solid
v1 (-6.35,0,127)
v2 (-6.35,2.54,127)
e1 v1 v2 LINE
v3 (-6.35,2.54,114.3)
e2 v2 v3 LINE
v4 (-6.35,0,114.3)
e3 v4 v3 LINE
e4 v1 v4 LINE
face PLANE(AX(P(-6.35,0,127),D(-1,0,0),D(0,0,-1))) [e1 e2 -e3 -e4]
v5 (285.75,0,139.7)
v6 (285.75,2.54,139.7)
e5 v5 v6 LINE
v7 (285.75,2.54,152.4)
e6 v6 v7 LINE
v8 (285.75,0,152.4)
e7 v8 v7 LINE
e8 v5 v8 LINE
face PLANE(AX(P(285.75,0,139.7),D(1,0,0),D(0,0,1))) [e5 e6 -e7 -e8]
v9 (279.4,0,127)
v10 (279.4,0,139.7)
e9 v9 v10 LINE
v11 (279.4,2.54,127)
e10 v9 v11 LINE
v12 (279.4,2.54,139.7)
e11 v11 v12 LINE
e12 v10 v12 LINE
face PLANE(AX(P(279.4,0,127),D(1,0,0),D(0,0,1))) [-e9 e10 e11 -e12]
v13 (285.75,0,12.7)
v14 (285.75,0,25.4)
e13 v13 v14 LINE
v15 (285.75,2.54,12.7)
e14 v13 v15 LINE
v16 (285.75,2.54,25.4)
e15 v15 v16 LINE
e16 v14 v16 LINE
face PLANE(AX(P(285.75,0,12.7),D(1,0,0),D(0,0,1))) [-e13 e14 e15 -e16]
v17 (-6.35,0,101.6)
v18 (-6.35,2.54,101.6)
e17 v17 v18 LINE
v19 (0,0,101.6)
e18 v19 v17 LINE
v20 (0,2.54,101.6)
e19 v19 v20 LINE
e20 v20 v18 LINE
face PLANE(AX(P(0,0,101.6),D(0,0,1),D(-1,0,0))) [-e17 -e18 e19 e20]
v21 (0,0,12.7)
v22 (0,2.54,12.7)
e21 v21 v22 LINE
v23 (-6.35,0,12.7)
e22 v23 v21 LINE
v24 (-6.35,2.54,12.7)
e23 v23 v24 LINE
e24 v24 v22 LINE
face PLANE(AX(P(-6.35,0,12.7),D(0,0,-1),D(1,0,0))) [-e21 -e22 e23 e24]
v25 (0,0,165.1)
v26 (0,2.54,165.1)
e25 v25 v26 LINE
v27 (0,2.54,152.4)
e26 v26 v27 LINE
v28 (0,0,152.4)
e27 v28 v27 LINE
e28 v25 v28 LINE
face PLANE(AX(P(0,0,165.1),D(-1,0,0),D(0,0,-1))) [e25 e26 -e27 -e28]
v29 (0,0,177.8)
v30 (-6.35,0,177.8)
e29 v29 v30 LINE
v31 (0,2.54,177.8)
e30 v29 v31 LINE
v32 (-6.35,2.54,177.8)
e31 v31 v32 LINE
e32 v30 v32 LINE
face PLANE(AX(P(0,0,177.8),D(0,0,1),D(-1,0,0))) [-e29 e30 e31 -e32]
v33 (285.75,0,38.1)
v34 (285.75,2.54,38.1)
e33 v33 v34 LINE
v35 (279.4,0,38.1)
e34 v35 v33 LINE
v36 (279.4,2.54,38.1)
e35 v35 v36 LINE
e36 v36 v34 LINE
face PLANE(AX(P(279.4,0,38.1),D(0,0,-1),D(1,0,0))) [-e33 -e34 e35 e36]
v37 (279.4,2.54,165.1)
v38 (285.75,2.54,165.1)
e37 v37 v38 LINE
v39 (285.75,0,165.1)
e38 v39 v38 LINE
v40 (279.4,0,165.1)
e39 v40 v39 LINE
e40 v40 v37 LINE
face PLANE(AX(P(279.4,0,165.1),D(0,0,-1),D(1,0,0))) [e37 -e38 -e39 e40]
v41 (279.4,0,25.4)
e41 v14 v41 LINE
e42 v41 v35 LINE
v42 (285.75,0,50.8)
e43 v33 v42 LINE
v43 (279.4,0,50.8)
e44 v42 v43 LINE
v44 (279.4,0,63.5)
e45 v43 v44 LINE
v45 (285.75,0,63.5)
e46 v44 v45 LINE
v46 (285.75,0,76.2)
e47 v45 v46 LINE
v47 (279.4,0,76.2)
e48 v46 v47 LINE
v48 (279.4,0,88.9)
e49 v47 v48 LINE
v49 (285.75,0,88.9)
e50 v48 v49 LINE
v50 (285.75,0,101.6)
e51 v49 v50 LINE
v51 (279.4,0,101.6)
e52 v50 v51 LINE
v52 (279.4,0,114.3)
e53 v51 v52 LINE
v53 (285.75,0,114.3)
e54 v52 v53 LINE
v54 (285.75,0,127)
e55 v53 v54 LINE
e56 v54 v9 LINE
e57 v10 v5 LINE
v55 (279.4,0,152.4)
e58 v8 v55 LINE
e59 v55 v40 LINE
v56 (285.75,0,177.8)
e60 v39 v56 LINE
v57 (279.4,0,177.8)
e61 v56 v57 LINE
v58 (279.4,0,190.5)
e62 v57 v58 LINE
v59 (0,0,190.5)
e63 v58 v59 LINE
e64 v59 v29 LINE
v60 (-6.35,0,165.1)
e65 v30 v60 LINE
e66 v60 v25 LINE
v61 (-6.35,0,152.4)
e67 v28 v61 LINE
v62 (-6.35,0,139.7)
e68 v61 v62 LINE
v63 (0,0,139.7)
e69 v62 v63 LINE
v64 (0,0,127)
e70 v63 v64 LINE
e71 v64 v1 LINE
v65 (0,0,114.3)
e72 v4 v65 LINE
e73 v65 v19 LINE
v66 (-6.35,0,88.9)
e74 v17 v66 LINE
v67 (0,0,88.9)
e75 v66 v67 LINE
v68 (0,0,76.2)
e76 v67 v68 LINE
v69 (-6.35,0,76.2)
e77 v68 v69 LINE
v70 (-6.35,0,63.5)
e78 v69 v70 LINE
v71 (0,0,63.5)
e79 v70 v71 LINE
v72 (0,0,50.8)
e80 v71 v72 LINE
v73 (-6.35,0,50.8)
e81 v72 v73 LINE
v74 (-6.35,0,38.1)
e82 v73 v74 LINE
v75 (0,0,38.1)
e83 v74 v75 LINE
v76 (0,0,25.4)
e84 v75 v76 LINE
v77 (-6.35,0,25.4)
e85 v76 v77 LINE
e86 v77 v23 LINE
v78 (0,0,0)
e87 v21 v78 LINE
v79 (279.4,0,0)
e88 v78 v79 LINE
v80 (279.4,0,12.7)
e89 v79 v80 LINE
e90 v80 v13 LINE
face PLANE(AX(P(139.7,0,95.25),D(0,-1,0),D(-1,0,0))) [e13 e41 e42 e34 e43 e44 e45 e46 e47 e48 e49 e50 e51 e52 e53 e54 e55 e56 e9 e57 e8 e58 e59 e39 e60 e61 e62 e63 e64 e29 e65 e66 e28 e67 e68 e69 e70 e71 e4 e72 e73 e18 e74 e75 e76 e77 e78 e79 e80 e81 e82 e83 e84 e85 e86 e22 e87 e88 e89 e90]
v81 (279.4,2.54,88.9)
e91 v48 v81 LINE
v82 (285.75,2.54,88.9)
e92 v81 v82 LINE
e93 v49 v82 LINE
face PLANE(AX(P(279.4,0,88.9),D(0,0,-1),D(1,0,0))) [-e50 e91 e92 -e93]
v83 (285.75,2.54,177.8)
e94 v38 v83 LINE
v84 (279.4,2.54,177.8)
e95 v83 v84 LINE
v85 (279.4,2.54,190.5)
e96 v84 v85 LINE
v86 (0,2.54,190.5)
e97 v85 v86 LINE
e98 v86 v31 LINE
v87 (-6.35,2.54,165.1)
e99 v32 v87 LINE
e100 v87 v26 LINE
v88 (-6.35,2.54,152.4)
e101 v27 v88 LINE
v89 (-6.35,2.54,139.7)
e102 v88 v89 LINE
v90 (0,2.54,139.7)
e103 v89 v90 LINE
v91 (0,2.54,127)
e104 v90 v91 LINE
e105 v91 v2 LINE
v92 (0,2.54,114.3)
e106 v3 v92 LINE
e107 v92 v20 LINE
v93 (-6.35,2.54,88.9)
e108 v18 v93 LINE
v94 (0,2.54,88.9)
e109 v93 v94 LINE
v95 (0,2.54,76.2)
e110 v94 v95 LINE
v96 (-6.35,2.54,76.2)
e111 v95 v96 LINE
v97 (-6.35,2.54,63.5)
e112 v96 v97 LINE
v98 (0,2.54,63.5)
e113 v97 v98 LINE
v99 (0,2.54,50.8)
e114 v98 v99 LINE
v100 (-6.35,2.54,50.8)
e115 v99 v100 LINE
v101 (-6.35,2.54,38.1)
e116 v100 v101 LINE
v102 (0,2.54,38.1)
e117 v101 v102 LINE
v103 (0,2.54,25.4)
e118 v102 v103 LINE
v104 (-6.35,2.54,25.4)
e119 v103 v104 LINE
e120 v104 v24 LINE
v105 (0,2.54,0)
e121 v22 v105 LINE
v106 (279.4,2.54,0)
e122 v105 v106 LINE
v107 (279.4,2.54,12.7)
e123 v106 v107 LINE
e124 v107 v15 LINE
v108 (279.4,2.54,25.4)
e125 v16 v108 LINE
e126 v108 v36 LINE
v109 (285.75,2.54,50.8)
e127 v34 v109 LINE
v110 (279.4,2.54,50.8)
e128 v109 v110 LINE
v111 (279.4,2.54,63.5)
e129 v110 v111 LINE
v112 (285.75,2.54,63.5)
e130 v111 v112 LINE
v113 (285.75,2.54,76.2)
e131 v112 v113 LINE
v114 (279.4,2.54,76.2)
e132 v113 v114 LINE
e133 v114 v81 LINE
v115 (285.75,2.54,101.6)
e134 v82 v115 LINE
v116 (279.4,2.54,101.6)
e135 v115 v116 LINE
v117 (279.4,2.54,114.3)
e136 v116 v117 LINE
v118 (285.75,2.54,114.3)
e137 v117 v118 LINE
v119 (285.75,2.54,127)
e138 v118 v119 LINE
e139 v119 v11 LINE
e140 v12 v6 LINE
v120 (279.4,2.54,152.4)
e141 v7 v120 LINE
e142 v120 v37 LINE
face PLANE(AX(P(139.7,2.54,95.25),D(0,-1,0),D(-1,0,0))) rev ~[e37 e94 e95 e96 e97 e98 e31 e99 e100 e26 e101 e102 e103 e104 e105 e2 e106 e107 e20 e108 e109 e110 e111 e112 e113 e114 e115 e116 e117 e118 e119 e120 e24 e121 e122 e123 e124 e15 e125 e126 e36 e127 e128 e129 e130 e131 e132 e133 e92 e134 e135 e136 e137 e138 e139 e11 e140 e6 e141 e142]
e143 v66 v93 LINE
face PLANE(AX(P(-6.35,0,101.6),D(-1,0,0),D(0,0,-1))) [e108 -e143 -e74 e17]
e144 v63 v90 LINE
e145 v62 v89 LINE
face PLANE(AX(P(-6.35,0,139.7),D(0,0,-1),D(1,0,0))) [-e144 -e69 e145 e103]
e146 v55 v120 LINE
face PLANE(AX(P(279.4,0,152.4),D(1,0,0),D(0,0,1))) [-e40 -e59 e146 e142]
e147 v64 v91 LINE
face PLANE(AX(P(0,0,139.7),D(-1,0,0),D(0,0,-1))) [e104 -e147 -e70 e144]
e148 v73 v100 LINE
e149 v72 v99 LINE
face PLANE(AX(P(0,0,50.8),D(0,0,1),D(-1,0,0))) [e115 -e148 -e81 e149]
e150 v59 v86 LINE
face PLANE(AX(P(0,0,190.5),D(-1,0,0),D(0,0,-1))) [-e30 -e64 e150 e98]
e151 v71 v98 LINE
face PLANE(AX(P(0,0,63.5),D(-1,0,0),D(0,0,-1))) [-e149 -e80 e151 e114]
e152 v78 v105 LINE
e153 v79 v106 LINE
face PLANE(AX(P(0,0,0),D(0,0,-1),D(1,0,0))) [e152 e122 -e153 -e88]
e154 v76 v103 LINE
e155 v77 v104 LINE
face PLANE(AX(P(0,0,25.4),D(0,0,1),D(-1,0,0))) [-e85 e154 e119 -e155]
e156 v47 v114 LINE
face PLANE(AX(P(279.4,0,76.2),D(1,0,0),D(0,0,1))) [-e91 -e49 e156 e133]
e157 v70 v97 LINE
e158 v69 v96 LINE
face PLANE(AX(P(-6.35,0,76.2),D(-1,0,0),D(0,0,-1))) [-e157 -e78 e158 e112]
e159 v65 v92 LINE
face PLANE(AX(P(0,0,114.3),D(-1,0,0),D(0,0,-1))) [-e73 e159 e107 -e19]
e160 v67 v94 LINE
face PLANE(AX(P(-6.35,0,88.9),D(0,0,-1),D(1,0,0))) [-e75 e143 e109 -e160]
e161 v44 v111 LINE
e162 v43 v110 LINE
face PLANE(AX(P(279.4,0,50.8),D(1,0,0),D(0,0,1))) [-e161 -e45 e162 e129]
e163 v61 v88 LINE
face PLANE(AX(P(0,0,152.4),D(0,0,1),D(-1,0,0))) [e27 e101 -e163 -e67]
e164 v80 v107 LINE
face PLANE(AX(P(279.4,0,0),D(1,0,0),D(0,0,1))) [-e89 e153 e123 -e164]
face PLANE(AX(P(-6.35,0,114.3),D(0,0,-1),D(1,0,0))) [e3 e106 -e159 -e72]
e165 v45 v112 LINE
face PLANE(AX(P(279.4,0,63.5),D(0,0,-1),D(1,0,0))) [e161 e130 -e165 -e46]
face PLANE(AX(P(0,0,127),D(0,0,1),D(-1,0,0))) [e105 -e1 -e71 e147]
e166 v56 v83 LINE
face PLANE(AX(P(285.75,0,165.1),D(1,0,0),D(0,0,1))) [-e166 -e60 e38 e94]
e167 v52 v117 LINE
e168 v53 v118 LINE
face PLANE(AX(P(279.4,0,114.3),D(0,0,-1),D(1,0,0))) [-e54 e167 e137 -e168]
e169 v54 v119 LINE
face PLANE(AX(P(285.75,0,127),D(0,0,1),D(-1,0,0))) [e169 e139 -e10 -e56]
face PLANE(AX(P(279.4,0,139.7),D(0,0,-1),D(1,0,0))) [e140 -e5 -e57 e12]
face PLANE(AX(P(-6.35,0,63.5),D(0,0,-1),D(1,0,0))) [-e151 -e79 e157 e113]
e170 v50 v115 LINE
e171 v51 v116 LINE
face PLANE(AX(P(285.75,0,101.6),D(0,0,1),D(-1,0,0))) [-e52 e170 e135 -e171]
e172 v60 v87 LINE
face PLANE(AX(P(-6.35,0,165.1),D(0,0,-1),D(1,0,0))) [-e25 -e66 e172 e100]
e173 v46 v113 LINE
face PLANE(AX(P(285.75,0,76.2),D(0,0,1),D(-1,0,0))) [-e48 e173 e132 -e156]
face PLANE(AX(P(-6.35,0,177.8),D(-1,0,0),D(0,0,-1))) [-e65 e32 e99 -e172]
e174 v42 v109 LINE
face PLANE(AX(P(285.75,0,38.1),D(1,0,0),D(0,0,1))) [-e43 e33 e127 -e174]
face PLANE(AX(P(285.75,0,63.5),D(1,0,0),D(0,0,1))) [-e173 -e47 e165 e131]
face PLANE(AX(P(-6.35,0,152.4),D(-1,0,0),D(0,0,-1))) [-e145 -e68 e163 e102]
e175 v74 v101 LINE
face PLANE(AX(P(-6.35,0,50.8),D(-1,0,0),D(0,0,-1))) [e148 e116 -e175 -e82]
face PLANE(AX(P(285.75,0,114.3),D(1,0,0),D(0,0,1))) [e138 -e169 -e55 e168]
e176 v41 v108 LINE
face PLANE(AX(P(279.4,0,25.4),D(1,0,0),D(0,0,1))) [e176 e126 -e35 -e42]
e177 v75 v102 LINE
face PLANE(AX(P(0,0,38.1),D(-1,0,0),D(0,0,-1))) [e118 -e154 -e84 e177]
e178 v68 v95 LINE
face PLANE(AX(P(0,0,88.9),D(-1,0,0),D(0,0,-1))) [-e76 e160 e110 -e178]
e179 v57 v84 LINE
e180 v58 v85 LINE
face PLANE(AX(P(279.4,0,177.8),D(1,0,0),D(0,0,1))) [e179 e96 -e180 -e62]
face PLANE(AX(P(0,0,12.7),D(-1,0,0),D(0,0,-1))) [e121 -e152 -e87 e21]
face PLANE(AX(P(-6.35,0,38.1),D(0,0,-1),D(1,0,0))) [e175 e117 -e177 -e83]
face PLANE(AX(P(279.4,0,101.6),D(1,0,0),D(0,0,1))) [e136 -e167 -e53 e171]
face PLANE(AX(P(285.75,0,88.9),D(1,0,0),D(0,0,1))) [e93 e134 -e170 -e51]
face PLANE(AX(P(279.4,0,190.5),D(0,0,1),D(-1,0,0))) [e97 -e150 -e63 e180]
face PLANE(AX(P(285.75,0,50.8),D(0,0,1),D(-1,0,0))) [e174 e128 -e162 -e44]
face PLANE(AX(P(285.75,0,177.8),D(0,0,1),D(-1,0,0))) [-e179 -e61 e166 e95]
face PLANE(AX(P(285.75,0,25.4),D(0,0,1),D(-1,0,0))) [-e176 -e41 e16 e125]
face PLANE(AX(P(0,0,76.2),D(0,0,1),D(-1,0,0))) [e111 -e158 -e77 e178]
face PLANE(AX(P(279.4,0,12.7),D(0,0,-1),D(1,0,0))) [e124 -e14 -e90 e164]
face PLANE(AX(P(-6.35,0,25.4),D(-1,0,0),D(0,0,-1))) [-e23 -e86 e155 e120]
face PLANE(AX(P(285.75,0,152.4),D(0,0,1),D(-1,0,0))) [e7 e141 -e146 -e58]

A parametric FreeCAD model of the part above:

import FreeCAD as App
import Part
import Sketcher
from FreeCAD import Vector
Q = App.Units.Quantity


def add_polygon(sketch, points):
    """Adds a closed chain of lines whose ends are joined by coincident constraints."""
    first, n = sketch.GeometryCount, len(points)
    for a, b in zip(points, points[1:] + points[:1]):
        sketch.addGeometry(Part.LineSegment(App.Vector(*a, 0), App.Vector(*b, 0)), False)
    for i in range(n):
        sketch.addConstraint(Sketcher.Constraint("Coincident", first + i, 2, first + (i + 1) % n, 1))

doc = App.newDocument("Part")
body = doc.addObject("PartDesign::Body", "Body")

# Sketch on XZ plane
sketch1 = body.newObject("Sketcher::SketchObject", "Sketch")
sketch1.AttachmentSupport = (doc.getObject("XZ_Plane"), [""])
sketch1.MapMode = "FlatFace"
add_polygon(sketch1, [(279.4, 0), (0, 0), (0, 12.7), (-6.35, 12.7), (-6.35, 25.4), (0, 25.4), (0, 38.1), (-6.35, 38.1), (-6.35, 50.8), (0, 50.8), (0, 63.5), (-6.35, 63.5), (-6.35, 76.2), (0, 76.2), (0, 88.9), (-6.35, 88.9), (-6.35, 101.6), (0, 101.6), (0, 114.3), (-6.35, 114.3), (-6.35, 127), (0, 127), (0, 139.7), (-6.35, 139.7), (-6.35, 152.4), (0, 152.4), (0, 165.1), (-6.35, 165.1), (-6.35, 177.8), (0, 177.8), (0, 190.5), (279.4, 190.5), (279.4, 177.8), (285.75, 177.8), (285.75, 165.1), (279.4, 165.1), (279.4, 152.4), (285.75, 152.4), (285.75, 139.7), (279.4, 139.7), (279.4, 127), (285.75, 127), (285.75, 114.3), (279.4, 114.3), (279.4, 101.6), (285.75, 101.6), (285.75, 88.9), (279.4, 88.9), (279.4, 76.2), (285.75, 76.2), (285.75, 63.5), (279.4, 63.5), (279.4, 50.8), (285.75, 50.8), (285.75, 38.1), (279.4, 38.1), (279.4, 25.4), (285.75, 25.4), (285.75, 12.7), (279.4, 12.7)])  # lines 0-59
sketch1.addConstraint(Sketcher.Constraint("Horizontal", 0))
sketch1.addConstraint(Sketcher.Constraint("Vertical", 1))
sketch1.addConstraint(Sketcher.Constraint("Horizontal", 2))
sketch1.addConstraint(Sketcher.Constraint("Vertical", 3))
sketch1.addConstraint(Sketcher.Constraint("Horizontal", 4))
sketch1.addConstraint(Sketcher.Constraint("Vertical", 5))
sketch1.addConstraint(Sketcher.Constraint("Horizontal", 6))
sketch1.addConstraint(Sketcher.Constraint("Vertical", 7))
sketch1.addConstraint(Sketcher.Constraint("Horizontal", 8))
sketch1.addConstraint(Sketcher.Constraint("Vertical", 9))
sketch1.addConstraint(Sketcher.Constraint("Horizontal", 10))
sketch1.addConstraint(Sketcher.Constraint("Vertical", 11))
sketch1.addConstraint(Sketcher.Constraint("Horizontal", 12))
sketch1.addConstraint(Sketcher.Constraint("Vertical", 13))
sketch1.addConstraint(Sketcher.Constraint("Horizontal", 14))
sketch1.addConstraint(Sketcher.Constraint("Vertical", 15))
sketch1.addConstraint(Sketcher.Constraint("Horizontal", 16))
sketch1.addConstraint(Sketcher.Constraint("Vertical", 17))
sketch1.addConstraint(Sketcher.Constraint("Horizontal", 18))
sketch1.addConstraint(Sketcher.Constraint("Vertical", 19))
sketch1.addConstraint(Sketcher.Constraint("Horizontal", 20))
sketch1.addConstraint(Sketcher.Constraint("Vertical", 21))
sketch1.addConstraint(Sketcher.Constraint("Horizontal", 22))
sketch1.addConstraint(Sketcher.Constraint("Vertical", 23))
sketch1.addConstraint(Sketcher.Constraint("Horizontal", 24))
sketch1.addConstraint(Sketcher.Constraint("Vertical", 25))
sketch1.addConstraint(Sketcher.Constraint("Horizontal", 26))
sketch1.addConstraint(Sketcher.Constraint("Vertical", 27))
sketch1.addConstraint(Sketcher.Constraint("Horizontal", 28))
sketch1.addConstraint(Sketcher.Constraint("Vertical", 29))
sketch1.addConstraint(Sketcher.Constraint("Horizontal", 30))
sketch1.addConstraint(Sketcher.Constraint("Vertical", 31))
sketch1.addConstraint(Sketcher.Constraint("Horizontal", 32))
sketch1.addConstraint(Sketcher.Constraint("Vertical", 33))
sketch1.addConstraint(Sketcher.Constraint("Horizontal", 34))
sketch1.addConstraint(Sketcher.Constraint("Vertical", 35))
sketch1.addConstraint(Sketcher.Constraint("Horizontal", 36))
sketch1.addConstraint(Sketcher.Constraint("Vertical", 37))
sketch1.addConstraint(Sketcher.Constraint("Horizontal", 38))
sketch1.addConstraint(Sketcher.Constraint("Vertical", 39))
sketch1.addConstraint(Sketcher.Constraint("Horizontal", 40))
sketch1.addConstraint(Sketcher.Constraint("Vertical", 41))
sketch1.addConstraint(Sketcher.Constraint("Horizontal", 42))
sketch1.addConstraint(Sketcher.Constraint("Vertical", 43))
sketch1.addConstraint(Sketcher.Constraint("Horizontal", 44))
sketch1.addConstraint(Sketcher.Constraint("Vertical", 45))
sketch1.addConstraint(Sketcher.Constraint("Horizontal", 46))
sketch1.addConstraint(Sketcher.Constraint("Vertical", 47))
sketch1.addConstraint(Sketcher.Constraint("Horizontal", 48))
sketch1.addConstraint(Sketcher.Constraint("Vertical", 49))
sketch1.addConstraint(Sketcher.Constraint("Horizontal", 50))
sketch1.addConstraint(Sketcher.Constraint("Vertical", 51))
sketch1.addConstraint(Sketcher.Constraint("Horizontal", 52))
sketch1.addConstraint(Sketcher.Constraint("Vertical", 53))
sketch1.addConstraint(Sketcher.Constraint("Horizontal", 54))
sketch1.addConstraint(Sketcher.Constraint("Vertical", 55))
sketch1.addConstraint(Sketcher.Constraint("Horizontal", 56))
sketch1.addConstraint(Sketcher.Constraint("Vertical", 57))
sketch1.addConstraint(Sketcher.Constraint("Horizontal", 58))
sketch1.addConstraint(Sketcher.Constraint("Vertical", 59))
sketch1.addConstraint(Sketcher.Constraint("Coincident", 0, 2, -1, 1))
sketch1.addConstraint(Sketcher.Constraint("PointOnObject", 4, 2, -2))
sketch1.addConstraint(Sketcher.Constraint("PointOnObject", 8, 2, -2))
sketch1.addConstraint(Sketcher.Constraint("PointOnObject", 12, 2, -2))
sketch1.addConstraint(Sketcher.Constraint("PointOnObject", 16, 2, -2))
sketch1.addConstraint(Sketcher.Constraint("PointOnObject", 20, 2, -2))
sketch1.addConstraint(Sketcher.Constraint("PointOnObject", 24, 2, -2))
sketch1.addConstraint(Sketcher.Constraint("PointOnObject", 28, 2, -2))
sketch1.addConstraint(Sketcher.Constraint("Horizontal", 28, 2, 31, 2))
sketch1.addConstraint(Sketcher.Constraint("Horizontal", 26, 2, 33, 2))
sketch1.addConstraint(Sketcher.Constraint("Horizontal", 24, 2, 35, 2))
sketch1.addConstraint(Sketcher.Constraint("Horizontal", 22, 2, 37, 2))
sketch1.addConstraint(Sketcher.Constraint("Horizontal", 20, 2, 39, 2))
sketch1.addConstraint(Sketcher.Constraint("Horizontal", 18, 2, 41, 2))
sketch1.addConstraint(Sketcher.Constraint("Horizontal", 16, 2, 43, 2))
sketch1.addConstraint(Sketcher.Constraint("Horizontal", 14, 2, 45, 2))
sketch1.addConstraint(Sketcher.Constraint("Horizontal", 12, 2, 47, 2))
sketch1.addConstraint(Sketcher.Constraint("Horizontal", 10, 2, 49, 2))
sketch1.addConstraint(Sketcher.Constraint("Horizontal", 8, 2, 51, 2))
sketch1.addConstraint(Sketcher.Constraint("Horizontal", 6, 2, 53, 2))
sketch1.addConstraint(Sketcher.Constraint("Horizontal", 4, 2, 55, 2))
sketch1.addConstraint(Sketcher.Constraint("Horizontal", 2, 2, 57, 2))
sketch1.addConstraint(Sketcher.Constraint("Vertical", 3, 2, 6, 2))
sketch1.addConstraint(Sketcher.Constraint("Vertical", 7, 2, 10, 2))
sketch1.addConstraint(Sketcher.Constraint("Vertical", 11, 2, 14, 2))
sketch1.addConstraint(Sketcher.Constraint("Vertical", 15, 2, 18, 2))
sketch1.addConstraint(Sketcher.Constraint("Vertical", 19, 2, 22, 2))
sketch1.addConstraint(Sketcher.Constraint("Vertical", 23, 2, 26, 2))
sketch1.addConstraint(Sketcher.Constraint("Vertical", 31, 2, 34, 2))
sketch1.addConstraint(Sketcher.Constraint("Vertical", 33, 2, 36, 2))
sketch1.addConstraint(Sketcher.Constraint("Vertical", 35, 2, 38, 2))
sketch1.addConstraint(Sketcher.Constraint("Vertical", 37, 2, 40, 2))
sketch1.addConstraint(Sketcher.Constraint("Vertical", 39, 2, 42, 2))
sketch1.addConstraint(Sketcher.Constraint("Vertical", 41, 2, 44, 2))
sketch1.addConstraint(Sketcher.Constraint("Vertical", 43, 2, 46, 2))
sketch1.addConstraint(Sketcher.Constraint("Vertical", 45, 2, 48, 2))
sketch1.addConstraint(Sketcher.Constraint("Vertical", 47, 2, 50, 2))
sketch1.addConstraint(Sketcher.Constraint("Vertical", 49, 2, 52, 2))
sketch1.addConstraint(Sketcher.Constraint("Vertical", 51, 2, 54, 2))
sketch1.addConstraint(Sketcher.Constraint("Vertical", 53, 2, 56, 2))
sketch1.addConstraint(Sketcher.Constraint("Vertical", 55, 2, 58, 2))
sketch1.addConstraint(Sketcher.Constraint("Equal", 28, 32))
sketch1.addConstraint(Sketcher.Constraint("Equal", 1, 3))
sketch1.addConstraint(Sketcher.Constraint("Equal", 3, 5))
sketch1.addConstraint(Sketcher.Constraint("Equal", 5, 7))
sketch1.addConstraint(Sketcher.Constraint("Equal", 7, 9))
sketch1.addConstraint(Sketcher.Constraint("Equal", 9, 11))
sketch1.addConstraint(Sketcher.Constraint("Equal", 11, 13))
sketch1.addConstraint(Sketcher.Constraint("Equal", 13, 15))
sketch1.addConstraint(Sketcher.Constraint("Equal", 15, 17))
sketch1.addConstraint(Sketcher.Constraint("Equal", 17, 19))
sketch1.addConstraint(Sketcher.Constraint("Equal", 19, 21))
sketch1.addConstraint(Sketcher.Constraint("Equal", 21, 23))
sketch1.addConstraint(Sketcher.Constraint("Equal", 23, 25))
sketch1.addConstraint(Sketcher.Constraint("Equal", 25, 27))
sketch1.addConstraint(Sketcher.Constraint("Equal", 27, 29))
sketch1.addConstraint(Sketcher.Constraint("DistanceX", 0, 2, 0, 1, Q("11 in")))
sketch1.addConstraint(Sketcher.Constraint("DistanceY", 1, 1, 1, 2, Q("0.5 in")))
sketch1.addConstraint(Sketcher.Constraint("DistanceX", 2, 2, 2, 1, Q("0.25 in")))
pad1 = body.newObject("PartDesign::Pad", "Pad")
pad1.Profile = sketch1
pad1.Length = Q("0.1 in")
pad1.Reversed = True

doc.recompute()
